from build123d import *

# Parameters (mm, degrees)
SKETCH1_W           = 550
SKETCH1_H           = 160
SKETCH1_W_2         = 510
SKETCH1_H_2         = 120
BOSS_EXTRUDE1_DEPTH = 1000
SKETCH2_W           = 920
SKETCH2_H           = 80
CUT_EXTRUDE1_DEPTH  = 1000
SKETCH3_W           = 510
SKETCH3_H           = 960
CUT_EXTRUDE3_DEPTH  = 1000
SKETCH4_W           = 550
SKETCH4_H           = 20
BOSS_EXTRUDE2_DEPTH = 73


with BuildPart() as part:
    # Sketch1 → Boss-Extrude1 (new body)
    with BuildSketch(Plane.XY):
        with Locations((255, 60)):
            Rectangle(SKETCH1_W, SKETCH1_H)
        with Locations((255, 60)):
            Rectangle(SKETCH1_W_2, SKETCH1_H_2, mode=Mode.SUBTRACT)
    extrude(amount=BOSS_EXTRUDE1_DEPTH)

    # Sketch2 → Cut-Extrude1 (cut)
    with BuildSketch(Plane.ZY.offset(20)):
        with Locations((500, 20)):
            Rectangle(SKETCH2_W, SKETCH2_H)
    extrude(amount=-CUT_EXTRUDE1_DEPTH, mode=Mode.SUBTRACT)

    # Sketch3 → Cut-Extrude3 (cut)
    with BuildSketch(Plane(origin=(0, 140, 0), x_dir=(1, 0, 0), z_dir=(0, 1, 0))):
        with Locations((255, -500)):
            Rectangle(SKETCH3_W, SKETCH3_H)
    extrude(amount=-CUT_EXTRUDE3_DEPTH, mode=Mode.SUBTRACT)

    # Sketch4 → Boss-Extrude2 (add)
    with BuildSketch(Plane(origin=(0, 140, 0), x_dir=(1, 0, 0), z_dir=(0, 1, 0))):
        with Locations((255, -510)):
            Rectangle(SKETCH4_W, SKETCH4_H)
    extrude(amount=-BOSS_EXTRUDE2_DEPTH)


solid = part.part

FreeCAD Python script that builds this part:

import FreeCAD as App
import Part
import Sketcher

V = App.Vector


def add_polygon(sketch, points):
    """Adds a closed chain of lines whose ends are joined by coincident constraints."""
    first, n = sketch.GeometryCount, len(points)
    for a, b in zip(points, points[1:] + points[:1]):
        sketch.addGeometry(Part.LineSegment(App.Vector(*a, 0), App.Vector(*b, 0)), False)
    for i in range(n):
        sketch.addConstraint(Sketcher.Constraint("Coincident", first + i, 2, first + (i + 1) % n, 1))

doc = App.newDocument("Part")
body = doc.addObject("PartDesign::Body", "Body")

# Sketch on XY plane
sketch1 = doc.addObject("Sketcher::SketchObject", "Sketch")
body.addObject(sketch1)
sketch1.AttachmentSupport = (doc.XY_Plane, [""])
sketch1.MapMode = "FlatFace"
add_polygon(sketch1, [(-20, 140), (-20, -20), (530, -20), (530, 140)])  # lines 0-3
add_polygon(sketch1, [(510, 0), (0, 0), (0, 120), (510, 120)])  # lines 4-7
sketch1.addConstraint([
    Sketcher.Constraint("Vertical", 0),
    Sketcher.Constraint("Horizontal", 1),
    Sketcher.Constraint("Vertical", 2),
    Sketcher.Constraint("Horizontal", 3),
    Sketcher.Constraint("Horizontal", 4),
    Sketcher.Constraint("Vertical", 5),
    Sketcher.Constraint("Horizontal", 6),
    Sketcher.Constraint("Vertical", 7),
    Sketcher.Constraint("Coincident", 4, 2, -1, 1),
    Sketcher.Constraint("DistanceX", 1, 1, 1, 2, 550.0),
    Sketcher.Constraint("DistanceX", 4, 2, 4, 1, 510.0),
    Sketcher.Constraint("DistanceY", 0, 2, 0, 1, 160.0),
    Sketcher.Constraint("DistanceY", 5, 1, 5, 2, 120.0),
    Sketcher.Constraint("DistanceX", 0, 2, -1, 1, 20.0),
    Sketcher.Constraint("DistanceY", 0, 2, -1, 1, 20.0),
])
pad1 = doc.addObject("PartDesign::Pad", "Pad")
body.addObject(pad1)
pad1.Profile = sketch1
pad1.Length = 1000

# Sketch on YZ plane
sketch2 = doc.addObject("Sketcher::SketchObject", "Sketch001")
body.addObject(sketch2)
sketch2.AttachmentSupport = (doc.YZ_Plane, [""])
sketch2.MapMode = "FlatFace"
sketch2.AttachmentOffset = App.Placement(V(0, 0, -20), App.Rotation())
add_polygon(sketch2, [(60, 40), (-20, 40), (-20, 960), (60, 960)])  # lines 0-3
sketch2.addConstraint([
    Sketcher.Constraint("Horizontal", 0),
    Sketcher.Constraint("Vertical", 1),
    Sketcher.Constraint("Horizontal", 2),
    Sketcher.Constraint("Vertical", 3),
    Sketcher.Constraint("DistanceX", 0, 2, 0, 1, 80.0),
    Sketcher.Constraint("DistanceY", 1, 1, 1, 2, 920.0),
    Sketcher.Constraint("DistanceX", 0, 2, -1, 1, 20.0),
    Sketcher.Constraint("DistanceY", -1, 1, 0, 2, 40.0),
])
pocket1 = doc.addObject("PartDesign::Pocket", "Pocket")
body.addObject(pocket1)
pocket1.Profile = sketch2
pocket1.Length = 1000
pocket1.Reversed = True

# Sketch on XZ plane
sketch3 = doc.addObject("Sketcher::SketchObject", "Sketch002")
body.addObject(sketch3)
sketch3.AttachmentSupport = (doc.XZ_Plane, [""])
sketch3.MapMode = "FlatFace"
sketch3.AttachmentOffset = App.Placement(V(0, 0, -140), App.Rotation())
add_polygon(sketch3, [(0, 20), (0, 980), (510, 980), (510, 20)])  # lines 0-3
sketch3.addConstraint([
    Sketcher.Constraint("Vertical", 0),
    Sketcher.Constraint("Horizontal", 1),
    Sketcher.Constraint("Vertical", 2),
    Sketcher.Constraint("Horizontal", 3),
    Sketcher.Constraint("PointOnObject", 0, 2, -2),
    Sketcher.Constraint("DistanceX", 1, 1, 1, 2, 510.0),
    Sketcher.Constraint("DistanceY", 0, 1, 0, 2, 960.0),
    Sketcher.Constraint("DistanceY", -1, 1, 0, 2, 980.0),
])
pocket2 = doc.addObject("PartDesign::Pocket", "Pocket001")
body.addObject(pocket2)
pocket2.Profile = sketch3
pocket2.Length = 1000
pocket2.Reversed = True

# Sketch on XZ plane
sketch4 = doc.addObject("Sketcher::SketchObject", "Sketch003")
body.addObject(sketch4)
sketch4.AttachmentSupport = (doc.XZ_Plane, [""])
sketch4.MapMode = "FlatFace"
sketch4.AttachmentOffset = App.Placement(V(0, 0, -140), App.Rotation())
add_polygon(sketch4, [(-20, 500), (-20, 520), (530, 520), (530, 500)])  # lines 0-3
sketch4.addConstraint([
    Sketcher.Constraint("Vertical", 0),
    Sketcher.Constraint("Horizontal", 1),
    Sketcher.Constraint("Vertical", 2),
    Sketcher.Constraint("Horizontal", 3),
    Sketcher.Constraint("DistanceX", 1, 1, 1, 2, 550.0),
    Sketcher.Constraint("DistanceY", 0, 1, 0, 2, 20.0),
    Sketcher.Constraint("DistanceX", 0, 2, -1, 1, 20.0),
    Sketcher.Constraint("DistanceY", -1, 1, 0, 2, 520.0),
])
pad2 = doc.addObject("PartDesign::Pad", "Pad001")
body.addObject(pad2)
pad2.Profile = sketch4
pad2.Length = 73

doc.recompute()
